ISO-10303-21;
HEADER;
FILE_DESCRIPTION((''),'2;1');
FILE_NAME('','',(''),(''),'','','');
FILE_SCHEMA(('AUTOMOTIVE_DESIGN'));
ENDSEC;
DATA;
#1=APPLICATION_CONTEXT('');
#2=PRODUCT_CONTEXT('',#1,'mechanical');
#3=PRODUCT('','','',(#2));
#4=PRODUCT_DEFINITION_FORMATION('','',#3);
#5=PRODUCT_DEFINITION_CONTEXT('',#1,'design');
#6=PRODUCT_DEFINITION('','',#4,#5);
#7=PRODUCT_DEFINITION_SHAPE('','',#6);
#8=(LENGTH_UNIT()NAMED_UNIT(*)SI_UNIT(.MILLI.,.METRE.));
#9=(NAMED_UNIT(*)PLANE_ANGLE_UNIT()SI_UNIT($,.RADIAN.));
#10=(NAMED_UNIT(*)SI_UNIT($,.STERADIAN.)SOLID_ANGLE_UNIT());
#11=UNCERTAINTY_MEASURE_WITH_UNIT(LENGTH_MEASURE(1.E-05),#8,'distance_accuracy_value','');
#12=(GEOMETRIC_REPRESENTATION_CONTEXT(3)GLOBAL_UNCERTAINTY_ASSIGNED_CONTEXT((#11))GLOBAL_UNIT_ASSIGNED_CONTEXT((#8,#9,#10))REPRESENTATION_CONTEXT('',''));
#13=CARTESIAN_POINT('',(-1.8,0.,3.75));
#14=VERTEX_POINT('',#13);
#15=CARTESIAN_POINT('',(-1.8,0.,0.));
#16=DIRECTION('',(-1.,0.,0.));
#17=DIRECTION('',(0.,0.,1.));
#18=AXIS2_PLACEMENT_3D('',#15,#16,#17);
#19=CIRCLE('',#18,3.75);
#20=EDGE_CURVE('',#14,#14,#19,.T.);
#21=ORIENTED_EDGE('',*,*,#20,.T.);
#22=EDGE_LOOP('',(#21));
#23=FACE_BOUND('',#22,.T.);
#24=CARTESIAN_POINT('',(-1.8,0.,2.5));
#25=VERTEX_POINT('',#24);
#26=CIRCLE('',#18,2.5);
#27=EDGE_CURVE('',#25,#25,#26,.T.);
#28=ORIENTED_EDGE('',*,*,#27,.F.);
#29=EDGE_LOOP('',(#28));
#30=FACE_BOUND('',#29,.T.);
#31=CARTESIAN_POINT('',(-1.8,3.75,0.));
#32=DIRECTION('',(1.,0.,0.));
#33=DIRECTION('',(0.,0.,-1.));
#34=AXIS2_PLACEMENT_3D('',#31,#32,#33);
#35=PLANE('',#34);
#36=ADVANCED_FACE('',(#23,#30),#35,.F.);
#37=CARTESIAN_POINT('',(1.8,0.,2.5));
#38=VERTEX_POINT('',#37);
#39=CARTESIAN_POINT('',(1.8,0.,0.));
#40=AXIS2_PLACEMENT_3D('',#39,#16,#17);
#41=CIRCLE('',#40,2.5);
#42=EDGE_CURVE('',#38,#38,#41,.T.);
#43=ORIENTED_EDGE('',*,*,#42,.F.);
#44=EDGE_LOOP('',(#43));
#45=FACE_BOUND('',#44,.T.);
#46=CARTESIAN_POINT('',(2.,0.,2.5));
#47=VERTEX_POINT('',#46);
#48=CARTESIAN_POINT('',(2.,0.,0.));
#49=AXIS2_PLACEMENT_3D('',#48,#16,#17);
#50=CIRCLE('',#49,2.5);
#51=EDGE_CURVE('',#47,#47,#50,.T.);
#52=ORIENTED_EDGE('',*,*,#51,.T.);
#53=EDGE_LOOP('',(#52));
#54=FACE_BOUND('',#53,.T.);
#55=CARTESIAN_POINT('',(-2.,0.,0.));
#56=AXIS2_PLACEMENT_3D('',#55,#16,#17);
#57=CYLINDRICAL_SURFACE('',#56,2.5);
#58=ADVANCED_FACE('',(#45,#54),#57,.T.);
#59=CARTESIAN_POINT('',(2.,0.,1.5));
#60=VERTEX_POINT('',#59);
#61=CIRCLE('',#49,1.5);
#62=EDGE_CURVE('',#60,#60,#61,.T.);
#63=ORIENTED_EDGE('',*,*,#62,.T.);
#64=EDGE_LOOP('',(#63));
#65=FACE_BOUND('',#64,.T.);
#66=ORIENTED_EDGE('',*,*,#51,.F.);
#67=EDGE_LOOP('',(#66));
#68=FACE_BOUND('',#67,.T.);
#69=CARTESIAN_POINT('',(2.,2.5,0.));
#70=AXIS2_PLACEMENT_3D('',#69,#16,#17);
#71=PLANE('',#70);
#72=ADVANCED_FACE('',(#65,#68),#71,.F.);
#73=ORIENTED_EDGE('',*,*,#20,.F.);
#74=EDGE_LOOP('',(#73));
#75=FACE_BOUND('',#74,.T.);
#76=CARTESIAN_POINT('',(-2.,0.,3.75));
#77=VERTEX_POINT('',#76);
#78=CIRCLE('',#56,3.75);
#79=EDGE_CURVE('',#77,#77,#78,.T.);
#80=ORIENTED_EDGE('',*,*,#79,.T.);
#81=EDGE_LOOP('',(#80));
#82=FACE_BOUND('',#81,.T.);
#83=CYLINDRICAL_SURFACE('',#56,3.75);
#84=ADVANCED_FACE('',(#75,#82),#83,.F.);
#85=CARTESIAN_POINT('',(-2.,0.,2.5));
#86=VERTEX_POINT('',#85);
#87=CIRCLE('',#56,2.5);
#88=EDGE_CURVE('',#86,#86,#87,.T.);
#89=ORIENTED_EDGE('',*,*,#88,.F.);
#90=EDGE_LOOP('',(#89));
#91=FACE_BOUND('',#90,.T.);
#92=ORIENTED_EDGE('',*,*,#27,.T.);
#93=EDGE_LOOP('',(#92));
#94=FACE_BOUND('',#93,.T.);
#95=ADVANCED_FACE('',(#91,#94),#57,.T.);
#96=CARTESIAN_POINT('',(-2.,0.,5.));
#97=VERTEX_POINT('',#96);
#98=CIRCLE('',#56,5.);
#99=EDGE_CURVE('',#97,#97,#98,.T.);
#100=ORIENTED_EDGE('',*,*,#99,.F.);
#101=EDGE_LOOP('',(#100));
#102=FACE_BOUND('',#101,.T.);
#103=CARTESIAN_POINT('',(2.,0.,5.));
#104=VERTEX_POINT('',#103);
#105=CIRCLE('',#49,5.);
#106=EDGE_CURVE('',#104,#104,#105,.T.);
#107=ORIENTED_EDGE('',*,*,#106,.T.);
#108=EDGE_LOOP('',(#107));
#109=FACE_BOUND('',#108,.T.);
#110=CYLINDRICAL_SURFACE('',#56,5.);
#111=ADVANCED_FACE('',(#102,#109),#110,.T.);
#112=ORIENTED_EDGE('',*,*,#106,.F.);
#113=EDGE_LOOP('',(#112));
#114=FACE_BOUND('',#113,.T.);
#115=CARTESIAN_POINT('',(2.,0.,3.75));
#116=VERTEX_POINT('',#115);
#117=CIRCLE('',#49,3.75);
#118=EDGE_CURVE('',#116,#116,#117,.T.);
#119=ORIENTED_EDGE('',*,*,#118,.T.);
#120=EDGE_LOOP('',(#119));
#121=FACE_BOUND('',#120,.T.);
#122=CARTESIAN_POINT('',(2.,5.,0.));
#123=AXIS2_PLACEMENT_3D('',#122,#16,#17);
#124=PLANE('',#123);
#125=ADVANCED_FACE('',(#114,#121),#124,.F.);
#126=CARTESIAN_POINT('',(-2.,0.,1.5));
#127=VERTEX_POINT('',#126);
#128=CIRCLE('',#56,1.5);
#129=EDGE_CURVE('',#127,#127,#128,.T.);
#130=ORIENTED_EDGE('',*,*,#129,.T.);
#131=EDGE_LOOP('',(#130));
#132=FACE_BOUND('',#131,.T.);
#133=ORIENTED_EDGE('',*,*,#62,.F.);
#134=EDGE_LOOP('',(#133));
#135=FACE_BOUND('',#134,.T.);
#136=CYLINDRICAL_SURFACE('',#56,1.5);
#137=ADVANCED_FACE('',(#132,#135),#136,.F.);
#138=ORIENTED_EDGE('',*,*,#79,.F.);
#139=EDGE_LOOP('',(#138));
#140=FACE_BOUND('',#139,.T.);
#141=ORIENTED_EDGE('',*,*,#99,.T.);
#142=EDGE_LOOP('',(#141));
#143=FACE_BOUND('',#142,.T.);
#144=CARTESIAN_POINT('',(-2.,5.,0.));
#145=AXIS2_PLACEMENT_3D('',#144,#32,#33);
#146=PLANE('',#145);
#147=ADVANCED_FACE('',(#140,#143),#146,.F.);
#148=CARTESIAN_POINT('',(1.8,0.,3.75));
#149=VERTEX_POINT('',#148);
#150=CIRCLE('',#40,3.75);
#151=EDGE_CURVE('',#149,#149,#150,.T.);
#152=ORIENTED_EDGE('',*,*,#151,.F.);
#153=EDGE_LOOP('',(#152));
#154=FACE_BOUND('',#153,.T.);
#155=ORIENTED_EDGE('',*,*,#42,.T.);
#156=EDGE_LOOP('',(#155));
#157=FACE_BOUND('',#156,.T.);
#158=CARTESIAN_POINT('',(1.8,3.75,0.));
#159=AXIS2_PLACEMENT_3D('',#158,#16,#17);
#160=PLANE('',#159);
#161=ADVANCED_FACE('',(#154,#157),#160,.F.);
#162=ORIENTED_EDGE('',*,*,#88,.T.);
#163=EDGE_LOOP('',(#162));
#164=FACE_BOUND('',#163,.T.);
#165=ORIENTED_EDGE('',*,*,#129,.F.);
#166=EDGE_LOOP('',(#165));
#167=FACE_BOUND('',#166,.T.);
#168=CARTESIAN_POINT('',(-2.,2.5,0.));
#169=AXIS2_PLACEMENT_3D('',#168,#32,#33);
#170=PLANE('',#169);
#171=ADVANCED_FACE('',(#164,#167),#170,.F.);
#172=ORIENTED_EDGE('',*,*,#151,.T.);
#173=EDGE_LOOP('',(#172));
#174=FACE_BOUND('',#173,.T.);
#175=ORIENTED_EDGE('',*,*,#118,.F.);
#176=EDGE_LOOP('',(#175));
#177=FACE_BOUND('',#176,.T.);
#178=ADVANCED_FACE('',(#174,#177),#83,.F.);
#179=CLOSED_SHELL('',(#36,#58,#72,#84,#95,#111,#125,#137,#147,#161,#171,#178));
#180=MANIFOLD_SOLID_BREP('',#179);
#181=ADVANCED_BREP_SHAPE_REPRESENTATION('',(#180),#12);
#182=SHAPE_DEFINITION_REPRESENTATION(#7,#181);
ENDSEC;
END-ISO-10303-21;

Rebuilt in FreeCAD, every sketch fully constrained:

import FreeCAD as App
import Part
import Sketcher

doc = App.newDocument("Part")
params = doc.addObject("Spreadsheet::Sheet", "Params")
for row, (alias, value) in enumerate([
    ("sketch1_width", "4 mm"),
    ("sketch1_height", "1 mm"),
    ("sketch1_width2", "0.2 mm"),
    ("sketch1_height2", "1.25 mm"),
    ("revolution_angle", "360 deg"),
], start=1):
    params.set(f"A{row}", alias)
    params.set(f"B{row}", "=" + value)
    params.setAlias(f"B{row}", alias)

body = doc.addObject("PartDesign::Body", "Body")

# Sketch on XY plane
sketch1 = body.newObject("Sketcher::SketchObject", "Sketch")
sketch1.AttachmentSupport = (doc.getObject("XY_Plane"), [""])
sketch1.MapMode = "FlatFace"
sketch1.addGeometry([
    Part.LineSegment(App.Vector(-1.8, 2.5, 0), App.Vector(-2, 2.5, 0)),  # 0
    Part.LineSegment(App.Vector(-2, 2.5, 0), App.Vector(-2, 1.5, 0)),  # 1
    Part.LineSegment(App.Vector(-2, 1.5, 0), App.Vector(2, 1.5, 0)),  # 2
    Part.LineSegment(App.Vector(2, 1.5, 0), App.Vector(2, 2.5, 0)),  # 3
    Part.LineSegment(App.Vector(2, 2.5, 0), App.Vector(1.8, 2.5, 0)),  # 4
    Part.LineSegment(App.Vector(1.8, 2.5, 0), App.Vector(1.8, 3.75, 0)),  # 5
    Part.LineSegment(App.Vector(1.8, 3.75, 0), App.Vector(2, 3.75, 0)),  # 6
    Part.LineSegment(App.Vector(2, 3.75, 0), App.Vector(2, 5, 0)),  # 7
    Part.LineSegment(App.Vector(2, 5, 0), App.Vector(-2, 5, 0)),  # 8
    Part.LineSegment(App.Vector(-2, 5, 0), App.Vector(-2, 3.75, 0)),  # 9
    Part.LineSegment(App.Vector(-2, 3.75, 0), App.Vector(-1.8, 3.75, 0)),  # 10
    Part.LineSegment(App.Vector(-1.8, 3.75, 0), App.Vector(-1.8, 2.5, 0)),  # 11
], False)
sketch1.addConstraint([
    Sketcher.Constraint("Coincident", 0, 2, 1, 1),
    Sketcher.Constraint("Coincident", 1, 2, 2, 1),
    Sketcher.Constraint("Coincident", 2, 2, 3, 1),
    Sketcher.Constraint("Coincident", 3, 2, 4, 1),
    Sketcher.Constraint("Coincident", 4, 2, 5, 1),
    Sketcher.Constraint("Coincident", 5, 2, 6, 1),
    Sketcher.Constraint("Coincident", 6, 2, 7, 1),
    Sketcher.Constraint("Coincident", 7, 2, 8, 1),
    Sketcher.Constraint("Coincident", 8, 2, 9, 1),
    Sketcher.Constraint("Coincident", 9, 2, 10, 1),
    Sketcher.Constraint("Coincident", 10, 2, 11, 1),
    Sketcher.Constraint("Coincident", 11, 2, 0, 1),
    Sketcher.Constraint("Horizontal", 0),
    Sketcher.Constraint("Vertical", 1),
    Sketcher.Constraint("Horizontal", 2),
    Sketcher.Constraint("Vertical", 3),
    Sketcher.Constraint("Horizontal", 4),
    Sketcher.Constraint("Vertical", 5),
    Sketcher.Constraint("Horizontal", 6),
    Sketcher.Constraint("Vertical", 7),
    Sketcher.Constraint("Horizontal", 8),
    Sketcher.Constraint("Vertical", 9),
    Sketcher.Constraint("Horizontal", 10),
    Sketcher.Constraint("Vertical", 11),
    Sketcher.Constraint("Symmetric", 0, 2, 3, 2, -2),
    Sketcher.Constraint("Symmetric", 6, 2, 9, 2, -2),
    Sketcher.Constraint("Vertical", 3, 2, 6, 2),
    Sketcher.Constraint("Equal", 0, 4),
    Sketcher.Constraint("Equal", 5, 7),
    Sketcher.Constraint("DistanceX", 2, 1, 2, 2, 4.0),
    Sketcher.Constraint("DistanceY", 1, 2, 1, 1, 1.0),
    Sketcher.Constraint("DistanceX", 0, 2, 0, 1, 0.2),
    Sketcher.Constraint("DistanceY", -1, 1, 7, 2, 5.0),
    Sketcher.Constraint("DistanceY", 5, 1, 5, 2, 1.25),
])
sketch1.setExpression("Constraints[29]", "Params.sketch1_width")
sketch1.setExpression("Constraints[30]", "Params.sketch1_height")
sketch1.setExpression("Constraints[31]", "Params.sketch1_width2")
sketch1.setExpression("Constraints[33]", "Params.sketch1_height2")
revolution = body.newObject("PartDesign::Revolution", "Revolution")
revolution.Profile = sketch1
revolution.ReferenceAxis = (sketch1, ["H_Axis"])
revolution.setExpression("Angle", "Params.revolution_angle")

doc.recompute()
